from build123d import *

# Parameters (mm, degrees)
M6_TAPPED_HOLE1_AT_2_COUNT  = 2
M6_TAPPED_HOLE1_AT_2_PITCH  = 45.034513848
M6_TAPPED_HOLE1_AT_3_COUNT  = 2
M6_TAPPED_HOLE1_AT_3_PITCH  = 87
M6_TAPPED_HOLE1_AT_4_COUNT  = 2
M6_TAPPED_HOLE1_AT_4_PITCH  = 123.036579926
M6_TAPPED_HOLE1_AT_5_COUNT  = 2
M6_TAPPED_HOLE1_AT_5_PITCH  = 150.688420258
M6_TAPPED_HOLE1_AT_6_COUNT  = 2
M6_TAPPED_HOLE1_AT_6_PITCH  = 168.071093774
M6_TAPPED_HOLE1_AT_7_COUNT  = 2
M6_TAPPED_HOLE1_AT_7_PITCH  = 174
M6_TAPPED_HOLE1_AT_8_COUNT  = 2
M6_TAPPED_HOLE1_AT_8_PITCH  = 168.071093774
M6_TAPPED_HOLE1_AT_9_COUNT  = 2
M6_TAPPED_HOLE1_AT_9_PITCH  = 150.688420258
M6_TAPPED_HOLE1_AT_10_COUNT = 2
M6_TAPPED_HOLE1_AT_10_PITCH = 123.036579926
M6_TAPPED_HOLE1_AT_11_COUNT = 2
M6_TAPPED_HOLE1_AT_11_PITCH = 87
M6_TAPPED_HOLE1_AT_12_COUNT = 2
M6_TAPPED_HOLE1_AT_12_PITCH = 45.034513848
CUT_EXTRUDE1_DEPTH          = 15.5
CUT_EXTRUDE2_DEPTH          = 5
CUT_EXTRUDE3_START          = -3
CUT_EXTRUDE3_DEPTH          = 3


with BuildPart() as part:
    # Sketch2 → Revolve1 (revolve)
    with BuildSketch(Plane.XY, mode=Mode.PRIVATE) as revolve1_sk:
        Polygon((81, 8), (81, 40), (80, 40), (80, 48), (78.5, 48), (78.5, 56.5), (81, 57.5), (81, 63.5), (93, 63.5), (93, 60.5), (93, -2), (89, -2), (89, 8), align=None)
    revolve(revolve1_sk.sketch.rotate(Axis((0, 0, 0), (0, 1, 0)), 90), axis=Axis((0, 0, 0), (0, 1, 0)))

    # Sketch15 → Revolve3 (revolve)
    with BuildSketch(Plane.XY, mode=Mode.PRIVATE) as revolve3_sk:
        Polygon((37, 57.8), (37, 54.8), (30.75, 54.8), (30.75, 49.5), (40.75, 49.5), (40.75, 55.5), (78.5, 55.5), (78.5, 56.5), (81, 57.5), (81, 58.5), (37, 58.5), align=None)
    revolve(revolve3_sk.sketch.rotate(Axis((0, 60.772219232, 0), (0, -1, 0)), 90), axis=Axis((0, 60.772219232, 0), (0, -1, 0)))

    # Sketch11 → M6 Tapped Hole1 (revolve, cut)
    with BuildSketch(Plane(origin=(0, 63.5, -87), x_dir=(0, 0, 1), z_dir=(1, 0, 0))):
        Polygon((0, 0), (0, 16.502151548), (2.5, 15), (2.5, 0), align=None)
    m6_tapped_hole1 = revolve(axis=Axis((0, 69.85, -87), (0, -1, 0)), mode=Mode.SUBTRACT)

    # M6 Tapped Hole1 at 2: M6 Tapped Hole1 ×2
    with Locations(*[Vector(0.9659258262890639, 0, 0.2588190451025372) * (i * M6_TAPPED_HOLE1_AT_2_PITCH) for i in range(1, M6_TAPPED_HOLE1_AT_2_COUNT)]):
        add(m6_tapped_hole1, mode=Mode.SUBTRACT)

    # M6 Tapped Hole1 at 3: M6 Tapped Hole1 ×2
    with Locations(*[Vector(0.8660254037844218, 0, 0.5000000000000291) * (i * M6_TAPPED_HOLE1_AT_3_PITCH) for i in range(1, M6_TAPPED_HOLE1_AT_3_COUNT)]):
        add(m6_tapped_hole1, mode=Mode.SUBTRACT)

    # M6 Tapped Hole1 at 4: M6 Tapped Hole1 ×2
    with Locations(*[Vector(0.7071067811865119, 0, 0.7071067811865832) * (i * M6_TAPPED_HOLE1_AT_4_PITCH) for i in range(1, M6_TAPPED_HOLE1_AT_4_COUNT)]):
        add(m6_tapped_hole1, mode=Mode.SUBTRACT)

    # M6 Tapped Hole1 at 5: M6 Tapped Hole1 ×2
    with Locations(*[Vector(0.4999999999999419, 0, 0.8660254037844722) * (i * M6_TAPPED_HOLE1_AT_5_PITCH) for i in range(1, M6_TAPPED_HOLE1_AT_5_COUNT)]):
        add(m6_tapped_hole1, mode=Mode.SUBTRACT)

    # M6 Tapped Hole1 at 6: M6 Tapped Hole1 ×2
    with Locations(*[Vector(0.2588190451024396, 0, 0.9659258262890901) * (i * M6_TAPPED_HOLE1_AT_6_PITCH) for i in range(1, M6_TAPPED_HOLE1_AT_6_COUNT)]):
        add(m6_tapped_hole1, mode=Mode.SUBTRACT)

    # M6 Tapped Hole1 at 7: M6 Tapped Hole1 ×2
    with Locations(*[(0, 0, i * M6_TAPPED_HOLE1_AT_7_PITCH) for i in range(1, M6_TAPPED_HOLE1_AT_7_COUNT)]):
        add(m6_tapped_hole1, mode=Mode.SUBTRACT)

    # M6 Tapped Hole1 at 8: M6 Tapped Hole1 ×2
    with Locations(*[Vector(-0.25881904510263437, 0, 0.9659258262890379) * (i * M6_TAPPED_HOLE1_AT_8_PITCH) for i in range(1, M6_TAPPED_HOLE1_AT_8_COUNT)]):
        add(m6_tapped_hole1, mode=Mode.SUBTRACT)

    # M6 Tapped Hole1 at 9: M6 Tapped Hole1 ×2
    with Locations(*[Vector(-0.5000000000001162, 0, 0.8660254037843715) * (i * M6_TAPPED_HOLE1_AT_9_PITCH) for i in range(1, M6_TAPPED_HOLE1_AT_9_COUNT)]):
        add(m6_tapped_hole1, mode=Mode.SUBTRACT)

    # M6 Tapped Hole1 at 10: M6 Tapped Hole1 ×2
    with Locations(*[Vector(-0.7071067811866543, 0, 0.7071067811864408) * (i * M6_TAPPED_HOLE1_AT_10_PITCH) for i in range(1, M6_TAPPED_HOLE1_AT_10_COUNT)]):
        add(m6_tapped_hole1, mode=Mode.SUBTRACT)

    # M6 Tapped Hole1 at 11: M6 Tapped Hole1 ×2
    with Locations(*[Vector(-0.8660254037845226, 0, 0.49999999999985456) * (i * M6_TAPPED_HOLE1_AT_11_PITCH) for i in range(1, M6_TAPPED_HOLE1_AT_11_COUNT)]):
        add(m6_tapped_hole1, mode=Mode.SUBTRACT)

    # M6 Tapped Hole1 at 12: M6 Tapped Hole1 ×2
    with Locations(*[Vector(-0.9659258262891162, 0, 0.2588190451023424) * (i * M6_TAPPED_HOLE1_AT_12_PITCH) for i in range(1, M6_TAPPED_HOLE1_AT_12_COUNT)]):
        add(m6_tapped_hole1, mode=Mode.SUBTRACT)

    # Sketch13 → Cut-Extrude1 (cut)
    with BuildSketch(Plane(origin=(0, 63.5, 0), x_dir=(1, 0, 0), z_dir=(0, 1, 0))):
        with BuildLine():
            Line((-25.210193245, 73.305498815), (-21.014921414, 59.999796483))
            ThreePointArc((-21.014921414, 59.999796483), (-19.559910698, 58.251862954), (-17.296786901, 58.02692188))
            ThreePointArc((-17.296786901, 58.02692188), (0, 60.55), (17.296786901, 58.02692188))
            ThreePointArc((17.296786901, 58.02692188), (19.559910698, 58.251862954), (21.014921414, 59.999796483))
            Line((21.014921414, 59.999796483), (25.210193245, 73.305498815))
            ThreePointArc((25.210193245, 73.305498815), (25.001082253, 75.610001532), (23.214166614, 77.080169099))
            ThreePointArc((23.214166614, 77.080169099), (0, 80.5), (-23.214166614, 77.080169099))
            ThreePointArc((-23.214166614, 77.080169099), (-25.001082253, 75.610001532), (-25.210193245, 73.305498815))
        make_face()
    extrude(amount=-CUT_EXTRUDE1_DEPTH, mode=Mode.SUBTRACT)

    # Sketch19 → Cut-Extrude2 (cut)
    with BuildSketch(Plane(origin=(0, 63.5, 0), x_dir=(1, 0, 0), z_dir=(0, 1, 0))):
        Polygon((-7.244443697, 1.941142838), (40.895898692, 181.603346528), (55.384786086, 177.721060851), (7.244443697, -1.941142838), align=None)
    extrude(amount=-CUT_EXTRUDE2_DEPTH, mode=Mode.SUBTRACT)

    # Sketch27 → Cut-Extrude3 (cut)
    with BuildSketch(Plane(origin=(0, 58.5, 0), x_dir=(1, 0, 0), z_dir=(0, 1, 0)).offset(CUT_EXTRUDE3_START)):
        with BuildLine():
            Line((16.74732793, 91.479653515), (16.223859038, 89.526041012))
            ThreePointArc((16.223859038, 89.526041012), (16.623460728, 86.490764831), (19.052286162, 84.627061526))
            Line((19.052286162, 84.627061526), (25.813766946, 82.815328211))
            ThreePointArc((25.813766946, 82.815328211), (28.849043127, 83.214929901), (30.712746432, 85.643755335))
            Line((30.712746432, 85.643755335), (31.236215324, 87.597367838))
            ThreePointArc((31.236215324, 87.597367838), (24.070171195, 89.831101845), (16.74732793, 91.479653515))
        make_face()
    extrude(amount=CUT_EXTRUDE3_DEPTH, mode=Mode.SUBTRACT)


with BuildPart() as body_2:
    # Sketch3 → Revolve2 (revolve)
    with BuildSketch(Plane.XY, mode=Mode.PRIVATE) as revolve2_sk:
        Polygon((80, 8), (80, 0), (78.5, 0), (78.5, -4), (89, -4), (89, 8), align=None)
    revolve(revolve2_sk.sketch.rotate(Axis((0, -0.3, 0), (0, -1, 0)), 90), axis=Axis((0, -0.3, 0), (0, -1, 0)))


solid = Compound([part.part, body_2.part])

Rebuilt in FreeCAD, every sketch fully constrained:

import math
import FreeCAD as App
import Part
import Sketcher
Q = App.Units.Quantity


def add_polygon(sketch, points):
    """Adds a closed chain of lines whose ends are joined by coincident constraints."""
    first, n = sketch.GeometryCount, len(points)
    for a, b in zip(points, points[1:] + points[:1]):
        sketch.addGeometry(Part.LineSegment(App.Vector(*a, 0), App.Vector(*b, 0)), False)
    for i in range(n):
        sketch.addConstraint(Sketcher.Constraint("Coincident", first + i, 2, first + (i + 1) % n, 1))

doc = App.newDocument("Part")
body = doc.addObject("PartDesign::Body", "Body")

# Sketch on XY plane
sketch1 = doc.addObject("Sketcher::SketchObject", "Sketch")
body.addObject(sketch1)
sketch1.AttachmentSupport = (doc.XY_Plane, [""])
sketch1.MapMode = "FlatFace"
add_polygon(sketch1, [(81, 40), (81, 8), (89, 8), (89, -2), (93, -2), (93, 63.5), (81, 63.5), (81, 57.5), (78.5, 56.5), (78.5, 48), (80, 48), (80, 40)])  # lines 0-11
sketch1.addConstraint(Sketcher.Constraint("Vertical", 0))
sketch1.addConstraint(Sketcher.Constraint("Horizontal", 1))
sketch1.addConstraint(Sketcher.Constraint("Vertical", 2))
sketch1.addConstraint(Sketcher.Constraint("Horizontal", 3))
sketch1.addConstraint(Sketcher.Constraint("Vertical", 4))
sketch1.addConstraint(Sketcher.Constraint("Horizontal", 5))
sketch1.addConstraint(Sketcher.Constraint("Vertical", 6))
sketch1.addConstraint(Sketcher.Constraint("Vertical", 8))
sketch1.addConstraint(Sketcher.Constraint("Horizontal", 9))
sketch1.addConstraint(Sketcher.Constraint("Vertical", 10))
sketch1.addConstraint(Sketcher.Constraint("Horizontal", 11))
sketch1.addConstraint(Sketcher.Constraint("Vertical", 0, 2, 5, 2))
sketch1.addConstraint(Sketcher.Constraint("Equal", 1, 10))
sketch1.addConstraint(Sketcher.Constraint("DistanceX", 1, 1, 1, 2, 8.0))
sketch1.addConstraint(Sketcher.Constraint("DistanceX", 3, 1, 3, 2, 4.0))
sketch1.addConstraint(Sketcher.Constraint("DistanceX", 11, 1, 11, 2, 1.0))
sketch1.addConstraint(Sketcher.Constraint("DistanceY", 0, 2, 0, 1, 32.0))
sketch1.addConstraint(Sketcher.Constraint("DistanceY", 2, 2, 2, 1, 10.0))
sketch1.addConstraint(Sketcher.Constraint("DistanceY", 6, 2, 6, 1, 6.0))
sketch1.addConstraint(Sketcher.Constraint("DistanceX", 9, 1, 9, 2, 1.5))
sketch1.addConstraint(Sketcher.Constraint("DistanceY", 4, 1, 4, 2, 65.5))
sketch1.addConstraint(Sketcher.Constraint("DistanceY", 8, 2, 8, 1, 8.5))
sketch1.addConstraint(Sketcher.Constraint("DistanceX", -1, 1, 0, 2, 81.0))
sketch1.addConstraint(Sketcher.Constraint("DistanceY", -1, 1, 0, 2, 8.0))
revolution = doc.addObject("PartDesign::Revolution", "Revolution")
body.addObject(revolution)
revolution.Profile = sketch1
revolution.ReferenceAxis = (sketch1, ["V_Axis"])
revolution.Angle = 360

# Sketch on XY plane
sketch2 = doc.addObject("Sketcher::SketchObject", "Sketch001")
body.addObject(sketch2)
sketch2.AttachmentSupport = (doc.XY_Plane, [""])
sketch2.MapMode = "FlatFace"
add_polygon(sketch2, [(37, 54.8), (30.75, 54.8), (30.75, 49.5), (40.75, 49.5), (40.75, 55.5), (78.5, 55.5), (78.5, 56.5), (81, 57.5), (81, 58.5), (37, 58.5)])  # lines 0-9
sketch2.addConstraint(Sketcher.Constraint("Horizontal", 0))
sketch2.addConstraint(Sketcher.Constraint("Vertical", 1))
sketch2.addConstraint(Sketcher.Constraint("Horizontal", 2))
sketch2.addConstraint(Sketcher.Constraint("Vertical", 3))
sketch2.addConstraint(Sketcher.Constraint("Horizontal", 4))
sketch2.addConstraint(Sketcher.Constraint("Vertical", 5))
sketch2.addConstraint(Sketcher.Constraint("Vertical", 7))
sketch2.addConstraint(Sketcher.Constraint("Horizontal", 8))
sketch2.addConstraint(Sketcher.Constraint("Vertical", 9))
sketch2.addConstraint(Sketcher.Constraint("Equal", 5, 7))
sketch2.addConstraint(Sketcher.Constraint("DistanceX", 2, 1, 2, 2, 10.0))
sketch2.addConstraint(Sketcher.Constraint("DistanceX", 8, 2, 8, 1, 44.0))
sketch2.addConstraint(Sketcher.Constraint("DistanceY", 3, 1, 3, 2, 6.0))
sketch2.addConstraint(Sketcher.Constraint("DistanceY", 5, 1, 5, 2, 1.0))
sketch2.addConstraint(Sketcher.Constraint("DistanceY", 1, 2, 1, 1, 5.3))
sketch2.addConstraint(Sketcher.Constraint("DistanceY", 9, 2, 9, 1, 3.7))
sketch2.addConstraint(Sketcher.Constraint("DistanceX", -1, 1, 6, 2, 81.0))
sketch2.addConstraint(Sketcher.Constraint("DistanceX", 0, 2, 0, 1, 6.25))
sketch2.addConstraint(Sketcher.Constraint("DistanceX", 4, 1, 4, 2, 37.75))
sketch2.addConstraint(Sketcher.Constraint("DistanceY", -1, 1, 0, 2, 54.8))
revolution2 = doc.addObject("PartDesign::Revolution", "Revolution001")
body.addObject(revolution2)
revolution2.Profile = sketch2
revolution2.ReferenceAxis = (sketch2, ["V_Axis"])
revolution2.Angle = 360

# Sketch on YZ plane
sketch3 = doc.addObject("Sketcher::SketchObject", "Sketch002")
body.addObject(sketch3)
sketch3.AttachmentSupport = (doc.YZ_Plane, [""])
sketch3.MapMode = "FlatFace"
add_polygon(sketch3, [(46.997848, -87), (63.5, -87), (63.5, -84.5), (48.5, -84.5)])  # lines 0-3
sketch3.addGeometry(Part.LineSegment(App.Vector(63.5, -87, 0), App.Vector(46.997848, -87, 0)), True)  # axis
sketch3.addConstraint(Sketcher.Constraint("Horizontal", 0))
sketch3.addConstraint(Sketcher.Constraint("Vertical", 1))
sketch3.addConstraint(Sketcher.Constraint("Horizontal", 2))
sketch3.addConstraint(Sketcher.Constraint("Horizontal", 4))
sketch3.addConstraint(Sketcher.Constraint("Coincident", 4, 1, 0, 2))
sketch3.addConstraint(Sketcher.Constraint("Equal", 0, 4))
sketch3.addConstraint(Sketcher.Constraint("DistanceX", 2, 2, 2, 1, 15.0))
sketch3.addConstraint(Sketcher.Constraint("Angle", 3, Q("-121 deg")))
sketch3.addConstraint(Sketcher.Constraint("DistanceY", 1, 1, 1, 2, 2.5))
sketch3.addConstraint(Sketcher.Constraint("DistanceY", 0, 2, -1, 1, 87.0))
sketch3.addConstraint(Sketcher.Constraint("DistanceX", -1, 1, 0, 2, 63.5))
groove = doc.addObject("PartDesign::Groove", "Groove")
body.addObject(groove)
groove.Profile = sketch3
groove.ReferenceAxis = (sketch3, ["Axis0"])
groove.Angle = 360
doc.recompute()

datumline = doc.addObject("PartDesign::Line", "DatumLine")
body.addObject(datumline)
datumline.Placement = App.Placement(App.Vector(0, 0, 0), App.Rotation(App.Vector(0, 0, 1), App.Vector(0.965925826, 0, 0.258819045)))
linearpattern = doc.addObject("PartDesign::LinearPattern", "LinearPattern")
body.addObject(linearpattern)
linearpattern.Originals = [groove]
linearpattern.Direction = (datumline, [""])
linearpattern.Mode = "offset"
linearpattern.Offset = 45.034514
linearpattern.Occurrences = 2
body.Tip = linearpattern
doc.recompute()

datumline2 = doc.addObject("PartDesign::Line", "DatumLine001")
body.addObject(datumline2)
datumline2.Placement = App.Placement(App.Vector(0, 0, 0), App.Rotation(App.Vector(0, 0, 1), App.Vector(0.866025404, 0, 0.5)))
linearpattern2 = doc.addObject("PartDesign::LinearPattern", "LinearPattern001")
body.addObject(linearpattern2)
linearpattern2.Originals = [groove]
linearpattern2.Direction = (datumline2, [""])
linearpattern2.Mode = "offset"
linearpattern2.Offset = 87
linearpattern2.Occurrences = 2
body.Tip = linearpattern2
doc.recompute()

datumline3 = doc.addObject("PartDesign::Line", "DatumLine002")
body.addObject(datumline3)
datumline3.Placement = App.Placement(App.Vector(0, 0, 0), App.Rotation(App.Vector(0, 0, 1), App.Vector(0.707106781, 0, 0.707106781)))
linearpattern3 = doc.addObject("PartDesign::LinearPattern", "LinearPattern002")
body.addObject(linearpattern3)
linearpattern3.Originals = [groove]
linearpattern3.Direction = (datumline3, [""])
linearpattern3.Mode = "offset"
linearpattern3.Offset = 123.03658
linearpattern3.Occurrences = 2
body.Tip = linearpattern3
doc.recompute()

datumline4 = doc.addObject("PartDesign::Line", "DatumLine003")
body.addObject(datumline4)
datumline4.Placement = App.Placement(App.Vector(0, 0, 0), App.Rotation(App.Vector(0, 0, 1), App.Vector(0.5, 0, 0.866025404)))
linearpattern4 = doc.addObject("PartDesign::LinearPattern", "LinearPattern003")
body.addObject(linearpattern4)
linearpattern4.Originals = [groove]
linearpattern4.Direction = (datumline4, [""])
linearpattern4.Mode = "offset"
linearpattern4.Offset = 150.68842
linearpattern4.Occurrences = 2
body.Tip = linearpattern4
doc.recompute()

datumline5 = doc.addObject("PartDesign::Line", "DatumLine004")
body.addObject(datumline5)
datumline5.Placement = App.Placement(App.Vector(0, 0, 0), App.Rotation(App.Vector(0, 0, 1), App.Vector(0.258819045, 0, 0.965925826)))
linearpattern5 = doc.addObject("PartDesign::LinearPattern", "LinearPattern004")
body.addObject(linearpattern5)
linearpattern5.Originals = [groove]
linearpattern5.Direction = (datumline5, [""])
linearpattern5.Mode = "offset"
linearpattern5.Offset = 168.071094
linearpattern5.Occurrences = 2
body.Tip = linearpattern5
doc.recompute()

linearpattern6 = doc.addObject("PartDesign::LinearPattern", "LinearPattern005")
body.addObject(linearpattern6)
linearpattern6.Originals = [groove]
linearpattern6.Direction = (doc.Z_Axis, [""])
linearpattern6.Mode = "offset"
linearpattern6.Offset = 174
linearpattern6.Occurrences = 2
body.Tip = linearpattern6
doc.recompute()

datumline6 = doc.addObject("PartDesign::Line", "DatumLine005")
body.addObject(datumline6)
datumline6.Placement = App.Placement(App.Vector(0, 0, 0), App.Rotation(App.Vector(0, 0, 1), App.Vector(-0.258819045, 0, 0.965925826)))
linearpattern7 = doc.addObject("PartDesign::LinearPattern", "LinearPattern006")
body.addObject(linearpattern7)
linearpattern7.Originals = [groove]
linearpattern7.Direction = (datumline6, [""])
linearpattern7.Mode = "offset"
linearpattern7.Offset = 168.071094
linearpattern7.Occurrences = 2
body.Tip = linearpattern7
doc.recompute()

datumline7 = doc.addObject("PartDesign::Line", "DatumLine006")
body.addObject(datumline7)
datumline7.Placement = App.Placement(App.Vector(0, 0, 0), App.Rotation(App.Vector(0, 0, 1), App.Vector(-0.5, 0, 0.866025404)))
linearpattern8 = doc.addObject("PartDesign::LinearPattern", "LinearPattern007")
body.addObject(linearpattern8)
linearpattern8.Originals = [groove]
linearpattern8.Direction = (datumline7, [""])
linearpattern8.Mode = "offset"
linearpattern8.Offset = 150.68842
linearpattern8.Occurrences = 2
body.Tip = linearpattern8
doc.recompute()

datumline8 = doc.addObject("PartDesign::Line", "DatumLine007")
body.addObject(datumline8)
datumline8.Placement = App.Placement(App.Vector(0, 0, 0), App.Rotation(App.Vector(0, 0, 1), App.Vector(-0.707106781, 0, 0.707106781)))
linearpattern9 = doc.addObject("PartDesign::LinearPattern", "LinearPattern008")
body.addObject(linearpattern9)
linearpattern9.Originals = [groove]
linearpattern9.Direction = (datumline8, [""])
linearpattern9.Mode = "offset"
linearpattern9.Offset = 123.03658
linearpattern9.Occurrences = 2
body.Tip = linearpattern9
doc.recompute()

datumline9 = doc.addObject("PartDesign::Line", "DatumLine008")
body.addObject(datumline9)
datumline9.Placement = App.Placement(App.Vector(0, 0, 0), App.Rotation(App.Vector(0, 0, 1), App.Vector(-0.866025404, 0, 0.5)))
linearpattern10 = doc.addObject("PartDesign::LinearPattern", "LinearPattern009")
body.addObject(linearpattern10)
linearpattern10.Originals = [groove]
linearpattern10.Direction = (datumline9, [""])
linearpattern10.Mode = "offset"
linearpattern10.Offset = 87
linearpattern10.Occurrences = 2
body.Tip = linearpattern10
doc.recompute()

datumline10 = doc.addObject("PartDesign::Line", "DatumLine009")
body.addObject(datumline10)
datumline10.Placement = App.Placement(App.Vector(0, 0, 0), App.Rotation(App.Vector(0, 0, 1), App.Vector(-0.965925826, 0, 0.258819045)))
linearpattern11 = doc.addObject("PartDesign::LinearPattern", "LinearPattern010")
body.addObject(linearpattern11)
linearpattern11.Originals = [groove]
linearpattern11.Direction = (datumline10, [""])
linearpattern11.Mode = "offset"
linearpattern11.Offset = 45.034514
linearpattern11.Occurrences = 2
body.Tip = linearpattern11

# Sketch on XZ plane
sketch4 = doc.addObject("Sketcher::SketchObject", "Sketch003")
body.addObject(sketch4)
sketch4.AttachmentSupport = (doc.XZ_Plane, [""])
sketch4.MapMode = "FlatFace"
sketch4.AttachmentOffset = App.Placement(App.Vector(0, 0, -63.5), App.Rotation())
sketch4.addGeometry(Part.LineSegment(App.Vector(-25.210193, -73.305499, 0), App.Vector(-21.014921, -59.999796, 0)), False)
sketch4.addGeometry(Part.ArcOfCircle(Part.Circle(App.Vector(-18.153771, -60.901914, 0), App.Vector(0, 0, 1), 3), math.radians(73.401623), math.radians(162.5)), False)
sketch4.addGeometry(Part.ArcOfCircle(Part.Circle(App.Vector(0, 0, 0), App.Vector(0, 0, 1), 60.55), math.radians(-106.598377), math.radians(-73.401623)), False)
sketch4.addGeometry(Part.ArcOfCircle(Part.Circle(App.Vector(18.153771, -60.901914, 0), App.Vector(0, 0, 1), 3), math.radians(17.5), math.radians(106.598377)), False)
sketch4.addGeometry(Part.LineSegment(App.Vector(21.014921, -59.999796, 0), App.Vector(25.210193, -73.305499, 0)), False)
sketch4.addGeometry(Part.ArcOfCircle(Part.Circle(App.Vector(22.349042, -74.207616, 0), App.Vector(0, 0, 1), 3), math.radians(-73.239321), math.radians(17.5)), False)
sketch4.addGeometry(Part.ArcOfCircle(Part.Circle(App.Vector(0, 0, 0), App.Vector(0, 0, 1), 80.5), math.radians(-106.760679), math.radians(-73.239321)), False)
sketch4.addGeometry(Part.ArcOfCircle(Part.Circle(App.Vector(-22.349042, -74.207616, 0), App.Vector(0, 0, 1), 3), math.radians(162.5), math.radians(253.239321)), False)
sketch4.addConstraint(Sketcher.Constraint("Tangent", 0, 2, 1, 2))
sketch4.addConstraint(Sketcher.Constraint("Tangent", 1, 1, 2, 1))
sketch4.addConstraint(Sketcher.Constraint("Tangent", 2, 2, 3, 2))
sketch4.addConstraint(Sketcher.Constraint("Tangent", 3, 1, 4, 1))
sketch4.addConstraint(Sketcher.Constraint("Tangent", 4, 2, 5, 2))
sketch4.addConstraint(Sketcher.Constraint("Tangent", 5, 1, 6, 2))
sketch4.addConstraint(Sketcher.Constraint("Tangent", 6, 1, 7, 2))
sketch4.addConstraint(Sketcher.Constraint("Tangent", 7, 1, 0, 1))
sketch4.addConstraint(Sketcher.Constraint("Coincident", 2, 3, -1, 1))
sketch4.addConstraint(Sketcher.Constraint("Coincident", 6, 3, -1, 1))
sketch4.addConstraint(Sketcher.Constraint("Equal", 1, 3))
sketch4.addConstraint(Sketcher.Constraint("Equal", 3, 5))
sketch4.addConstraint(Sketcher.Constraint("Equal", 5, 7))
sketch4.addConstraint(Sketcher.Constraint("Symmetric", 0, 2, 3, 1, -2))
sketch4.addConstraint(Sketcher.Constraint("Radius", 1, 3.0))
sketch4.addConstraint(Sketcher.Constraint("Radius", 6, 80.5))
sketch4.addConstraint(Sketcher.Constraint("Radius", 2, 60.55))
sketch4.addConstraint(Sketcher.Constraint("Angle", 0, Q("72.5 deg")))
sketch4.addConstraint(Sketcher.Constraint("DistanceY", 4, 2, -1, 1, 73.305499))
pocket1 = doc.addObject("PartDesign::Pocket", "Pocket")
body.addObject(pocket1)
pocket1.Profile = sketch4
pocket1.Length = 15.5
pocket1.Reversed = True

# Sketch on XZ plane
sketch5 = doc.addObject("Sketcher::SketchObject", "Sketch004")
body.addObject(sketch5)
sketch5.AttachmentSupport = (doc.XZ_Plane, [""])
sketch5.MapMode = "FlatFace"
sketch5.AttachmentOffset = App.Placement(App.Vector(0, 0, -63.5), App.Rotation())
add_polygon(sketch5, [(40.895899, -181.603347), (-7.244444, -1.941143), (7.244444, 1.941143), (55.384786, -177.721061)])  # lines 0-3
sketch5.addConstraint(Sketcher.Constraint("Symmetric", 0, 2, 1, 2, -1, 1))
sketch5.addConstraint(Sketcher.Constraint("Perpendicular", 0, 1))
sketch5.addConstraint(Sketcher.Constraint("Perpendicular", 1, 2))
sketch5.addConstraint(Sketcher.Constraint("Perpendicular", 2, 3))
sketch5.addConstraint(Sketcher.Constraint("Angle", 0, Q("105 deg")))
sketch5.addConstraint(Sketcher.Constraint("Distance", 0, 186.0))
sketch5.addConstraint(Sketcher.Constraint("Distance", 1, 15.0))
pocket2 = doc.addObject("PartDesign::Pocket", "Pocket001")
body.addObject(pocket2)
pocket2.Profile = sketch5
pocket2.Length = 5
pocket2.Reversed = True

# Sketch on XZ plane
sketch6 = doc.addObject("Sketcher::SketchObject", "Sketch005")
body.addObject(sketch6)
sketch6.AttachmentSupport = (doc.XZ_Plane, [""])
sketch6.MapMode = "FlatFace"
sketch6.AttachmentOffset = App.Placement(App.Vector(0, 0, -55.5), App.Rotation())
sketch6.addGeometry(Part.LineSegment(App.Vector(16.747328, -91.479654, 0), App.Vector(16.223859, -89.526041, 0)), False)
sketch6.addGeometry(Part.ArcOfCircle(Part.Circle(App.Vector(20.087562, -88.490765, 0), App.Vector(0, 0, 1), 4), math.radians(105), math.radians(195)), False)
sketch6.addGeometry(Part.LineSegment(App.Vector(19.052286, -84.627062, 0), App.Vector(25.813767, -82.815328, 0)), False)
sketch6.addGeometry(Part.ArcOfCircle(Part.Circle(App.Vector(26.849043, -86.679032, 0), App.Vector(0, 0, 1), 4), math.radians(15), math.radians(105)), False)
sketch6.addGeometry(Part.LineSegment(App.Vector(30.712746, -85.643755, 0), App.Vector(31.236215, -87.597368, 0)), False)
sketch6.addGeometry(Part.ArcOfCircle(Part.Circle(App.Vector(0, 0, 0), App.Vector(0, 0, 1), 93), math.radians(-79.625651), math.radians(-70.374349)), False)
sketch6.addConstraint(Sketcher.Constraint("Tangent", 0, 2, 1, 2))
sketch6.addConstraint(Sketcher.Constraint("Tangent", 1, 1, 2, 1))
sketch6.addConstraint(Sketcher.Constraint("Tangent", 2, 2, 3, 2))
sketch6.addConstraint(Sketcher.Constraint("Tangent", 3, 1, 4, 1))
sketch6.addConstraint(Sketcher.Constraint("Coincident", 4, 2, 5, 2))
sketch6.addConstraint(Sketcher.Constraint("Coincident", 5, 1, 0, 1))
sketch6.addConstraint(Sketcher.Constraint("Coincident", 5, 3, -1, 1))
sketch6.addConstraint(Sketcher.Constraint("Equal", 1, 3))
sketch6.addConstraint(Sketcher.Constraint("Perpendicular", 0, 2))
sketch6.addConstraint(Sketcher.Constraint("Perpendicular", 2, 4))
sketch6.addConstraint(Sketcher.Constraint("Equal", 0, 4))
sketch6.addConstraint(Sketcher.Constraint("Radius", 1, 4.0))
sketch6.addConstraint(Sketcher.Constraint("Radius", 5, 93.0))
sketch6.addConstraint(Sketcher.Constraint("Angle", 0, Q("105 deg")))
sketch6.addConstraint(Sketcher.Constraint("Distance", 2, 7.0))
sketch6.addConstraint(Sketcher.Constraint("Distance", 0, 2.022528))
pocket3 = doc.addObject("PartDesign::Pocket", "Pocket002")
body.addObject(pocket3)
pocket3.Profile = sketch6
pocket3.Length = 3
body2 = doc.addObject("PartDesign::Body", "Body001")

# Sketch on XY plane
sketch7 = doc.addObject("Sketcher::SketchObject", "Sketch006")
body2.addObject(sketch7)
sketch7.AttachmentSupport = (doc.getObject("XY_Plane001"), [""])
sketch7.MapMode = "FlatFace"
add_polygon(sketch7, [(80, 8), (80, 0), (78.5, 0), (78.5, -4), (89, -4), (89, 8)])  # lines 0-5
sketch7.addConstraint(Sketcher.Constraint("Vertical", 0))
sketch7.addConstraint(Sketcher.Constraint("Horizontal", 1))
sketch7.addConstraint(Sketcher.Constraint("Vertical", 2))
sketch7.addConstraint(Sketcher.Constraint("Horizontal", 3))
sketch7.addConstraint(Sketcher.Constraint("Vertical", 4))
sketch7.addConstraint(Sketcher.Constraint("Horizontal", 5))
sketch7.addConstraint(Sketcher.Constraint("PointOnObject", 0, 2, -1))
sketch7.addConstraint(Sketcher.Constraint("DistanceX", 5, 2, 5, 1, 9.0))
sketch7.addConstraint(Sketcher.Constraint("DistanceY", 0, 2, 0, 1, 8.0))
sketch7.addConstraint(Sketcher.Constraint("DistanceY", 2, 2, 2, 1, 4.0))
sketch7.addConstraint(Sketcher.Constraint("DistanceX", 1, 2, 1, 1, 1.5))
sketch7.addConstraint(Sketcher.Constraint("DistanceX", -1, 1, 0, 2, 80.0))
revolution3 = doc.addObject("PartDesign::Revolution", "Revolution002")
body2.addObject(revolution3)
revolution3.Profile = sketch7
revolution3.ReferenceAxis = (sketch7, ["V_Axis"])
revolution3.Angle = 360

doc.recompute()
